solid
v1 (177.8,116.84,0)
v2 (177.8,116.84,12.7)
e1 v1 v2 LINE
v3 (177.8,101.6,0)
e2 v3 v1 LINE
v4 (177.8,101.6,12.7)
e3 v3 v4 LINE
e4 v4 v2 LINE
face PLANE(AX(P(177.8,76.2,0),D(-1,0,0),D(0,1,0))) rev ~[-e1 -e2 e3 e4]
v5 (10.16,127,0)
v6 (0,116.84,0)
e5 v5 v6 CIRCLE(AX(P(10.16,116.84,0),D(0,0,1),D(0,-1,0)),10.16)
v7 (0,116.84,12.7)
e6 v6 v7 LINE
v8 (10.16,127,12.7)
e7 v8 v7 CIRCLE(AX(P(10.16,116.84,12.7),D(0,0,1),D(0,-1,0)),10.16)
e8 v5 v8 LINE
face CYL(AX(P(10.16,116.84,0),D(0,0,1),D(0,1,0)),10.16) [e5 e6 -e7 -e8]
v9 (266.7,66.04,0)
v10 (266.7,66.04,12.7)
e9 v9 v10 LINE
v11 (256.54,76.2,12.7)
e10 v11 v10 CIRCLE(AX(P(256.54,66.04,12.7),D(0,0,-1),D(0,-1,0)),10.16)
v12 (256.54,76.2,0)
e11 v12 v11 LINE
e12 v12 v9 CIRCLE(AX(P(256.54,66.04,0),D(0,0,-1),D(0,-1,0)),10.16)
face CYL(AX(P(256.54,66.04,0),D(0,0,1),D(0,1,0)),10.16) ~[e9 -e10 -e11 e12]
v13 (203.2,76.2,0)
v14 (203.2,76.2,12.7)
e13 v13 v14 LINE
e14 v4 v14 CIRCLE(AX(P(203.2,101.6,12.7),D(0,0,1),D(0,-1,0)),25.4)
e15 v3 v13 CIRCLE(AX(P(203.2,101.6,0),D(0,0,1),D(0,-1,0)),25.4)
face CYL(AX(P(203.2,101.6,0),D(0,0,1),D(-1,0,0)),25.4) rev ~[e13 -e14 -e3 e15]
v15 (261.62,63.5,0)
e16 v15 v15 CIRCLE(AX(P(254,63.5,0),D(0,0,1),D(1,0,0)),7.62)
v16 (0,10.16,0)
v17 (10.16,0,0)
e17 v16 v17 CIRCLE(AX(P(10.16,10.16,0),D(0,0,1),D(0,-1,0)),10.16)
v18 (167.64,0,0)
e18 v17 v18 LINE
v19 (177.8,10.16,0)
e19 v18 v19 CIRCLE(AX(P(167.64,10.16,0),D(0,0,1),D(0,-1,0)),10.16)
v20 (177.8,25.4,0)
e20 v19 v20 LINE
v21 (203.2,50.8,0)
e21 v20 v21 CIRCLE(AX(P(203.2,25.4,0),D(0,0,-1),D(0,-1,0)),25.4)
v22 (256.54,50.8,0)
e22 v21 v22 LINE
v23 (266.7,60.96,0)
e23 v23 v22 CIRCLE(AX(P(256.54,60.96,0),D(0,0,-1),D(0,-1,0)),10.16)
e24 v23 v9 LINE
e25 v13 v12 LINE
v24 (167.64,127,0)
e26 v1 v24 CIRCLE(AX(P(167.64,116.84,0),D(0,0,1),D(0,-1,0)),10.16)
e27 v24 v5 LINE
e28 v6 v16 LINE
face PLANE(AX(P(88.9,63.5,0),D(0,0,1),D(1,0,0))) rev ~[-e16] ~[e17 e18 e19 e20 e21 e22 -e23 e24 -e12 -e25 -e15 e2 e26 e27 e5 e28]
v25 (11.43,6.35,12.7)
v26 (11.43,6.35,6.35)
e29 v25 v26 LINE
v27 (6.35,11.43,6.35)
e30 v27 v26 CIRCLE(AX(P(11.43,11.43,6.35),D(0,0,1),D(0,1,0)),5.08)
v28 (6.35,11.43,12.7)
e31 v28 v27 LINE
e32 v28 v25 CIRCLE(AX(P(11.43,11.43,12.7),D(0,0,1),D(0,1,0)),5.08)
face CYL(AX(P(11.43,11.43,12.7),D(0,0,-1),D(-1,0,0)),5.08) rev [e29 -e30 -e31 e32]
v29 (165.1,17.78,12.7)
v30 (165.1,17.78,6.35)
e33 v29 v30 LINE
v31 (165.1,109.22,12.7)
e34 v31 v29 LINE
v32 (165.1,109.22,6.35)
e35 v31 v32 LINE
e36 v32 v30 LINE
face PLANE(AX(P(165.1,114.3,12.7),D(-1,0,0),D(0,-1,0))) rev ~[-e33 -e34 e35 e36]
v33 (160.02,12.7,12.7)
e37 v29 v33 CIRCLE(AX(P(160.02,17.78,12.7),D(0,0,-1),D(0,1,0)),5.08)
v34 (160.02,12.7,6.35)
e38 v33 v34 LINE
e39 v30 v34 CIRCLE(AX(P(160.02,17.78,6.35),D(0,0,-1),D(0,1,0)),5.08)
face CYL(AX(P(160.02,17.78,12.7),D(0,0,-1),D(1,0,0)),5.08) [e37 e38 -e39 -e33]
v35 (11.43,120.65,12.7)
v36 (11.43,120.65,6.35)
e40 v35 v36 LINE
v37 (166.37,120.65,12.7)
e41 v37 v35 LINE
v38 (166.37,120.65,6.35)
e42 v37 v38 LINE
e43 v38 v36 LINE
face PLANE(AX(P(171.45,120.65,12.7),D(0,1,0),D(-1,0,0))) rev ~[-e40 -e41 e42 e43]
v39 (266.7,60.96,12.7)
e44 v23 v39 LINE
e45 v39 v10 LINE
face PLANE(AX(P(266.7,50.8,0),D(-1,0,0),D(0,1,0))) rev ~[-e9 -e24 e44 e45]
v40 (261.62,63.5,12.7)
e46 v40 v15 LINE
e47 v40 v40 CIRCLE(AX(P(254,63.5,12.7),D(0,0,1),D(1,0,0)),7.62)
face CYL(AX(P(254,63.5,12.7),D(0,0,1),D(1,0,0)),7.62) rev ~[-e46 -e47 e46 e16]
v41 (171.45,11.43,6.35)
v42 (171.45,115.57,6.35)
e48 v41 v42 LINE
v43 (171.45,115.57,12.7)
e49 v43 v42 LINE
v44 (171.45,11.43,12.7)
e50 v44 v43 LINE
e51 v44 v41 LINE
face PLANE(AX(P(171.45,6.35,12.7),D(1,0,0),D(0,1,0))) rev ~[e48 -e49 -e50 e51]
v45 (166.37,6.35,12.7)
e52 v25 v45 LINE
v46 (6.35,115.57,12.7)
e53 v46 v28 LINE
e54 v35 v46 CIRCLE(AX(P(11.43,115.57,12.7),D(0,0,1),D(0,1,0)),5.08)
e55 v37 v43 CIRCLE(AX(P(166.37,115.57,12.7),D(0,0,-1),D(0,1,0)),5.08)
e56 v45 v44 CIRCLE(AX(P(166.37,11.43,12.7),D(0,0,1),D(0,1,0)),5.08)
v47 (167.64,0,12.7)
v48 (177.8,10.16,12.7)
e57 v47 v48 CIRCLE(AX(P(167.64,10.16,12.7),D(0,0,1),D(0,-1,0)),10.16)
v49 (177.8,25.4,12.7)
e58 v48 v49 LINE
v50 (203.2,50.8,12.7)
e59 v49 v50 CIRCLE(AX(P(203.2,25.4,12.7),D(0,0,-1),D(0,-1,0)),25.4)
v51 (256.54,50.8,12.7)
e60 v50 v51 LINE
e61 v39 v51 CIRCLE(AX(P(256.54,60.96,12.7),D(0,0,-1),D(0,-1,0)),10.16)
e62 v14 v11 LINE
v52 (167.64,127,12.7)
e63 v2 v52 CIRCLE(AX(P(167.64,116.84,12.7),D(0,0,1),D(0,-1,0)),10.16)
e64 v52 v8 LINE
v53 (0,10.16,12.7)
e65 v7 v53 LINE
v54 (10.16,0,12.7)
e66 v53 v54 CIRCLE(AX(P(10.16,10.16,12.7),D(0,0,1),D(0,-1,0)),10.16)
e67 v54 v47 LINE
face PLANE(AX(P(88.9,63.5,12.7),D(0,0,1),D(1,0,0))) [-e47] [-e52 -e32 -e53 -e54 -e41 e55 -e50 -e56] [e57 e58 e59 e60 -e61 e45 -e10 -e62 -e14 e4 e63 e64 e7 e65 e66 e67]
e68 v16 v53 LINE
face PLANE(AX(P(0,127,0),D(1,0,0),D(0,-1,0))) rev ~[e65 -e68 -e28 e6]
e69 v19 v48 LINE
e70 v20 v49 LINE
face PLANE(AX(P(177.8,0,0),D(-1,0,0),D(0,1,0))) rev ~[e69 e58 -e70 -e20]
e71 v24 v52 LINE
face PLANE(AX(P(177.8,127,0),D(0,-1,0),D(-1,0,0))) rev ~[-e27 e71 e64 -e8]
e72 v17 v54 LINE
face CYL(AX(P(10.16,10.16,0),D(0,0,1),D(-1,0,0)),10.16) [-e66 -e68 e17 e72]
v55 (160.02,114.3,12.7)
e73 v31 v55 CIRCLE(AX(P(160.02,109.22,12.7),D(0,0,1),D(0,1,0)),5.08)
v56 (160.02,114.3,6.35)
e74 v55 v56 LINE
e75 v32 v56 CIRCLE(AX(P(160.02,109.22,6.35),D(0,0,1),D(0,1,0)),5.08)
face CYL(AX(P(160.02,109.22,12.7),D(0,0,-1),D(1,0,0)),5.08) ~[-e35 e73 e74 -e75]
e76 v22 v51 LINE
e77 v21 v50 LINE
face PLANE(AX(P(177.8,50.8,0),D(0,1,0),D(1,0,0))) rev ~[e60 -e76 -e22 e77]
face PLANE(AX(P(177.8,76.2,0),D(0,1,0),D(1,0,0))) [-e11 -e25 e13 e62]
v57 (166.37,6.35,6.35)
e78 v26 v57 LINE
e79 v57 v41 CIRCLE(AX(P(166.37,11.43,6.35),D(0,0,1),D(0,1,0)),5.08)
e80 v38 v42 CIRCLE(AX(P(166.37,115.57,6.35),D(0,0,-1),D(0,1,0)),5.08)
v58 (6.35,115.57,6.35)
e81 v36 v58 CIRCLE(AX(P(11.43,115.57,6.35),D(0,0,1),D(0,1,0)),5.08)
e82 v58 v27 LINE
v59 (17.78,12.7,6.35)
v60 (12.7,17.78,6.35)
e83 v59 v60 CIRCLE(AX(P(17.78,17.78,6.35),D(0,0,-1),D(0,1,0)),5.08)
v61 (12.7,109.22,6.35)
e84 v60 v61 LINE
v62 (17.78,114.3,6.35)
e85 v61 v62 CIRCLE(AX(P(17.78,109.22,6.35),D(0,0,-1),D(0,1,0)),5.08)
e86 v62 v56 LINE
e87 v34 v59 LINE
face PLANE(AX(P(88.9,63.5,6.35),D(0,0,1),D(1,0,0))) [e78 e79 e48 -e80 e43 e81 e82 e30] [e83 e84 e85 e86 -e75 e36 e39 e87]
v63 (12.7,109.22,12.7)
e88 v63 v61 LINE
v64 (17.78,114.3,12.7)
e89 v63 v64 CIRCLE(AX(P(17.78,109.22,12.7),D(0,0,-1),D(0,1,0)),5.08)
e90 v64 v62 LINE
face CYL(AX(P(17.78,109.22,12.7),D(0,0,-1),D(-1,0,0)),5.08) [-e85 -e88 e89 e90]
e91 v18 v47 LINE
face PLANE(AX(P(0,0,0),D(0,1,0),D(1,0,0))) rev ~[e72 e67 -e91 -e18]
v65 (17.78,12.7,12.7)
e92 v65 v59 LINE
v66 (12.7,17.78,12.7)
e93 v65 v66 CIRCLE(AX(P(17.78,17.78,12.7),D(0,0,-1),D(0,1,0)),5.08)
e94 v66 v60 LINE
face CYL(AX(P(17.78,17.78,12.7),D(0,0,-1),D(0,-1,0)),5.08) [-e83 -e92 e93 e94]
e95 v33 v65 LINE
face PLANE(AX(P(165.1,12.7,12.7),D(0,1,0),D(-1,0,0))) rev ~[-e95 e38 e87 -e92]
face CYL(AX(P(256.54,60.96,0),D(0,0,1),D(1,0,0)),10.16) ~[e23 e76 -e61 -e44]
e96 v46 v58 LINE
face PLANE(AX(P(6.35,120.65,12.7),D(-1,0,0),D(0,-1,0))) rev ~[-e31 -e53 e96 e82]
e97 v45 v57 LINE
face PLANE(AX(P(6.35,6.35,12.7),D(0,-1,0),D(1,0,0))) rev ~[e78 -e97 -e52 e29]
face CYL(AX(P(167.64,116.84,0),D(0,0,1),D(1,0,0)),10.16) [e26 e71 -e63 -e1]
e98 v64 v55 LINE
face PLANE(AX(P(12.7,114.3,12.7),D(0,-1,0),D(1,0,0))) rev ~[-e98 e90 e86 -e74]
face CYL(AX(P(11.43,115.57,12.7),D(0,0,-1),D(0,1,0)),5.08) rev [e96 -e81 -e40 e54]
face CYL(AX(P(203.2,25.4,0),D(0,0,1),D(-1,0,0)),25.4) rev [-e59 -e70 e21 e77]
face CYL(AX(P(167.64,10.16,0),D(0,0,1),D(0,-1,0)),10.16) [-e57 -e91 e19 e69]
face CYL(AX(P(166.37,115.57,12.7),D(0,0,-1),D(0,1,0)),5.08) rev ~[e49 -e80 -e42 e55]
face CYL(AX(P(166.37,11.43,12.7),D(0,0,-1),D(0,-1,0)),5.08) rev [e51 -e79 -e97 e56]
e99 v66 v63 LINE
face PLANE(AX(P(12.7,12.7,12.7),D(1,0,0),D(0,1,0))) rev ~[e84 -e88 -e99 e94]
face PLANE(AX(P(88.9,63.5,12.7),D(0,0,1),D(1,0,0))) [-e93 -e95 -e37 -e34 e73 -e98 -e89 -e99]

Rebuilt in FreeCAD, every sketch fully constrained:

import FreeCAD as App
import Part
import Sketcher

V = App.Vector
Q = App.Units.Quantity


def edges_at(feature, points):
    """Names of the edges that pass closest to the given points."""
    edges = feature.Shape.Edges
    near = lambda p: min(range(len(edges)), key=lambda i: edges[i].distToShape(Part.Vertex(*p))[0])
    return sorted({f"Edge{near(p) + 1}" for p in points})


def add_polygon(sketch, points):
    """Adds a closed chain of lines whose ends are joined by coincident constraints."""
    first, n = sketch.GeometryCount, len(points)
    for a, b in zip(points, points[1:] + points[:1]):
        sketch.addGeometry(Part.LineSegment(App.Vector(*a, 0), App.Vector(*b, 0)), False)
    for i in range(n):
        sketch.addConstraint(Sketcher.Constraint("Coincident", first + i, 2, first + (i + 1) % n, 1))

doc = App.newDocument("Part")
body = doc.addObject("PartDesign::Body", "Body")

# Sketch on XY plane
sketch1 = body.newObject("Sketcher::SketchObject", "Sketch")
sketch1.AttachmentSupport = (doc.getObject("XY_Plane"), [""])
sketch1.MapMode = "FlatFace"
add_polygon(sketch1, [(0, 127), (0, 0), (178, 0), (178, 51), (267, 51), (267, 76), (178, 76), (178, 127)])  # lines 0-7
sketch1.addConstraint([
    Sketcher.Constraint("Vertical", 0),
    Sketcher.Constraint("Horizontal", 1),
    Sketcher.Constraint("Vertical", 2),
    Sketcher.Constraint("Horizontal", 3),
    Sketcher.Constraint("Vertical", 4),
    Sketcher.Constraint("Horizontal", 5),
    Sketcher.Constraint("Vertical", 6),
    Sketcher.Constraint("Horizontal", 7),
    Sketcher.Constraint("Coincident", 0, 2, -1, 1),
    Sketcher.Constraint("Vertical", 2, 2, 5, 2),
    Sketcher.Constraint("Equal", 2, 6),
    Sketcher.Constraint("DistanceX", 1, 1, 1, 2, Q("7 in")),
    Sketcher.Constraint("DistanceY", 0, 2, 0, 1, Q("5 in")),
    Sketcher.Constraint("DistanceY", 2, 1, 2, 2, Q("2 in")),
    Sketcher.Constraint("DistanceX", 3, 1, 3, 2, Q("3.5 in")),
])
pad1 = body.newObject("PartDesign::Pad", "Pad")
pad1.Profile = sketch1
pad1.Length = Q("0.5 in")

# Sketch on XY plane
sketch2 = body.newObject("Sketcher::SketchObject", "Sketch001")
sketch2.AttachmentSupport = (doc.getObject("XY_Plane"), [""])
sketch2.MapMode = "FlatFace"
sketch2.AttachmentOffset = App.Placement(V(0, 0, 0.5 * 25.4), App.Rotation())
sketch2.addGeometry(Part.Circle(V(254, 64, 0), V(0, 0, 1), 8), False)
sketch2.addConstraint([
    Sketcher.Constraint("Diameter", 0, Q("0.6 in")),
    Sketcher.Constraint("DistanceX", -1, 1, 0, 3, Q("10 in")),
    Sketcher.Constraint("DistanceY", -1, 1, 0, 3, Q("2.5 in")),
])
pocket1 = body.newObject("PartDesign::Pocket", "Pocket")
pocket1.Profile = sketch2
pocket1.Length = Q("1.9 in")

# Sketch on XY plane
sketch3 = body.newObject("Sketcher::SketchObject", "Sketch002")
sketch3.AttachmentSupport = (doc.getObject("XY_Plane"), [""])
sketch3.MapMode = "FlatFace"
sketch3.AttachmentOffset = App.Placement(V(0, 0, 0.5 * 25.4), App.Rotation())
add_polygon(sketch3, [(171, 121), (6, 121), (6, 6), (171, 6)])  # lines 0-3
add_polygon(sketch3, [(165, 114), (165, 13), (13, 13), (13, 114)])  # lines 4-7
sketch3.addConstraint([
    Sketcher.Constraint("Horizontal", 0),
    Sketcher.Constraint("Vertical", 1),
    Sketcher.Constraint("Horizontal", 2),
    Sketcher.Constraint("Vertical", 3),
    Sketcher.Constraint("Vertical", 4),
    Sketcher.Constraint("Horizontal", 5),
    Sketcher.Constraint("Vertical", 6),
    Sketcher.Constraint("Horizontal", 7),
    Sketcher.Constraint("DistanceX", 5, 2, 5, 1, Q("6 in")),
    Sketcher.Constraint("DistanceY", 4, 2, 4, 1, Q("4 in")),
    Sketcher.Constraint("DistanceX", 0, 2, 0, 1, Q("6.5 in")),
    Sketcher.Constraint("DistanceY", 1, 2, 1, 1, Q("4.5 in")),
    Sketcher.Constraint("DistanceX", -1, 1, 4, 2, Q("6.5 in")),
    Sketcher.Constraint("DistanceY", -1, 1, 4, 2, Q("0.5 in")),
    Sketcher.Constraint("DistanceX", -1, 1, 0, 2, Q("0.25 in")),
    Sketcher.Constraint("DistanceY", -1, 1, 0, 2, Q("4.75 in")),
])
pocket2 = body.newObject("PartDesign::Pocket", "Pocket001")
pocket2.Profile = sketch3
pocket2.Length = Q("0.25 in")
doc.recompute()

fillet = body.newObject("PartDesign::Fillet", "Fillet")
fillet.Base = (pocket2, edges_at(pocket2, [
    (6.35, 6.35, 9.525),
    (171.45, 6.35, 9.525),
    (171.45, 120.65, 9.525),
    (6.35, 120.65, 9.525),
    (165.1, 12.7, 9.525),
    (165.1, 114.3, 9.525),
    (12.7, 114.3, 9.525),
    (12.7, 12.7, 9.525),
]))
fillet.Radius = Q("0.2 in")
doc.recompute()

fillet2 = body.newObject("PartDesign::Fillet", "Fillet001")
fillet2.Base = (fillet, edges_at(fillet, [(177.8, 50.8, 6.35), (177.8, 76.2, 6.35)]))
fillet2.Radius = Q("1 in")
doc.recompute()

fillet3 = body.newObject("PartDesign::Fillet", "Fillet002")
fillet3.Base = (fillet2, edges_at(fillet2, [
    (266.7, 50.8, 6.35),
    (266.7, 76.2, 6.35),
    (177.8, 0, 6.35),
    (177.8, 127, 6.35),
    (0, 127, 6.35),
    (0, 0, 6.35),
]))
fillet3.Radius = Q("0.4 in")

doc.recompute()
